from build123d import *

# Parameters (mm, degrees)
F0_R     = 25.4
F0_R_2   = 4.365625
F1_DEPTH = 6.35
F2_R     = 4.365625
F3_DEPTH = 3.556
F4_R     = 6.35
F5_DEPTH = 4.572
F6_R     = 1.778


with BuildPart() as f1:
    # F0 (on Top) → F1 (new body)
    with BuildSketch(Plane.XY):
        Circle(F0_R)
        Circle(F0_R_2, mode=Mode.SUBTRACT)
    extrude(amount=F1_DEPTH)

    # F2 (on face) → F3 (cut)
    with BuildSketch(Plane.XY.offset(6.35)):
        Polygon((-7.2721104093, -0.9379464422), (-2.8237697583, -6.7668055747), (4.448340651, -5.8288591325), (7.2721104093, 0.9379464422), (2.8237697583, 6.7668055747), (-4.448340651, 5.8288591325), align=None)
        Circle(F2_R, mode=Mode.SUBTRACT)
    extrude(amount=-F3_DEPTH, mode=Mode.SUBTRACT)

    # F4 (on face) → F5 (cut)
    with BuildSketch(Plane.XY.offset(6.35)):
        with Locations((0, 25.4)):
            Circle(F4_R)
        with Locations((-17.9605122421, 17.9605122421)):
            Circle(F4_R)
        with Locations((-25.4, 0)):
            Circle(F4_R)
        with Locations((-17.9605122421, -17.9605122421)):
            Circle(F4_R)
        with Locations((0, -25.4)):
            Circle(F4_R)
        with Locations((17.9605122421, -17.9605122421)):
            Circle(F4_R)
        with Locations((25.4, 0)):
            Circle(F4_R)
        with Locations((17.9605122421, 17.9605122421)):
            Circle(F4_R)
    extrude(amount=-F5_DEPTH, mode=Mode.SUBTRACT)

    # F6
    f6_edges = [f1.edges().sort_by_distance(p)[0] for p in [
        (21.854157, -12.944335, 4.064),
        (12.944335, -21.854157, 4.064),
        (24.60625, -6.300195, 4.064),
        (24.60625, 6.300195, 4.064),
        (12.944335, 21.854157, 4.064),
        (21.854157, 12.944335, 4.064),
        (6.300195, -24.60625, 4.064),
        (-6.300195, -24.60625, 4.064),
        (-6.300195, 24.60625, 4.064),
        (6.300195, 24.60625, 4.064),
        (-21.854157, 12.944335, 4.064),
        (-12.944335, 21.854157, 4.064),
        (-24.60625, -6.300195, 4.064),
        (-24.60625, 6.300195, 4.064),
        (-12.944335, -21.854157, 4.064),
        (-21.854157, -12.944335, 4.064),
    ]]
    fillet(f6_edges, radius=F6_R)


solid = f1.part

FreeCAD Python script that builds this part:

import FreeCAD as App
import Part
import Sketcher

V = App.Vector
Q = App.Units.Quantity


def edges_at(feature, points):
    """Names of the edges that pass closest to the given points."""
    edges = feature.Shape.Edges
    near = lambda p: min(range(len(edges)), key=lambda i: edges[i].distToShape(Part.Vertex(*p))[0])
    return sorted({f"Edge{near(p) + 1}" for p in points})


def add_polygon(sketch, points):
    """Adds a closed chain of lines whose ends are joined by coincident constraints."""
    first, n = sketch.GeometryCount, len(points)
    for a, b in zip(points, points[1:] + points[:1]):
        sketch.addGeometry(Part.LineSegment(App.Vector(*a, 0), App.Vector(*b, 0)), False)
    for i in range(n):
        sketch.addConstraint(Sketcher.Constraint("Coincident", first + i, 2, first + (i + 1) % n, 1))

doc = App.newDocument("Part")
body = doc.addObject("PartDesign::Body", "Body")

sketch1 = doc.addObject("Sketcher::SketchObject", "Sketch")
body.addObject(sketch1)
sketch1.AttachmentSupport = (doc.XY_Plane, [""])
sketch1.MapMode = "FlatFace"
sketch1.addGeometry([
    Part.Circle(V(0, 0, 0), V(0, 0, 1), 25.4),
    Part.Circle(V(0, 0, 0), V(0, 0, 1), 4.365625),
], False)
sketch1.addConstraint([
    Sketcher.Constraint("Coincident", 0, 3, -1, 1),
    Sketcher.Constraint("Coincident", 1, 3, -1, 1),
    Sketcher.Constraint("Diameter", 0, Q("2 in")),
    Sketcher.Constraint("Diameter", 1, Q("0.34375 in")),
])
pad1 = doc.addObject("PartDesign::Pad", "Pad")
body.addObject(pad1)
pad1.Profile = sketch1
pad1.Length = Q("0.25 in")

sketch2 = doc.addObject("Sketcher::SketchObject", "Sketch001")
body.addObject(sketch2)
sketch2.AttachmentSupport = (doc.XY_Plane, [""])
sketch2.MapMode = "FlatFace"
sketch2.AttachmentOffset = App.Placement(V(0, 0, 0.25 * 25.4), App.Rotation())
add_polygon(sketch2, [(-7.27211, -0.937946), (-2.82377, -6.766806), (4.448341, -5.828859), (7.27211, 0.937946), (2.82377, 6.766806), (-4.448341, 5.828859)])
sketch2.addGeometry(Part.Circle(V(0, 0, 0), V(0, 0, 1), 4.365625), False)
sketch2.addConstraint([
    Sketcher.Constraint("Coincident", 6, 3, -1, 1),
    Sketcher.Constraint("Symmetric", 0, 2, 3, 2, -1, 1),
    Sketcher.Constraint("Symmetric", 1, 2, 4, 2, -1, 1),
    Sketcher.Constraint("Symmetric", 2, 2, 5, 2, -1, 1),
    Sketcher.Constraint("Equal", 0, 1),
    Sketcher.Constraint("Equal", 1, 2),
    Sketcher.Constraint("Diameter", 6, Q("0.34375 in")),
    Sketcher.Constraint("Distance", 0, Q("7.332348 mm")),
    Sketcher.Constraint("DistanceX", 0, 2, -1, 1, Q("2.82377 mm")),
    Sketcher.Constraint("DistanceX", -1, 1, 1, 2, Q("4.448341 mm")),
    Sketcher.Constraint("DistanceY", 1, 2, -1, 1, Q("5.828859 mm")),
])
pocket1 = doc.addObject("PartDesign::Pocket", "Pocket")
body.addObject(pocket1)
pocket1.Profile = sketch2
pocket1.Length = Q("0.14 in")

sketch3 = doc.addObject("Sketcher::SketchObject", "Sketch002")
body.addObject(sketch3)
sketch3.AttachmentSupport = (doc.XY_Plane, [""])
sketch3.MapMode = "FlatFace"
sketch3.AttachmentOffset = App.Placement(V(0, 0, 0.25 * 25.4), App.Rotation())
sketch3.addGeometry([
    Part.Circle(V(0, 25.4, 0), V(0, 0, 1), 6.35),
    Part.Circle(V(-17.960512, 17.960512, 0), V(0, 0, 1), 6.35),
    Part.Circle(V(-25.4, 0, 0), V(0, 0, 1), 6.35),
    Part.Circle(V(-17.960512, -17.960512, 0), V(0, 0, 1), 6.35),
    Part.Circle(V(0, -25.4, 0), V(0, 0, 1), 6.35),
    Part.Circle(V(17.960512, -17.960512, 0), V(0, 0, 1), 6.35),
    Part.Circle(V(25.4, 0, 0), V(0, 0, 1), 6.35),
    Part.Circle(V(17.960512, 17.960512, 0), V(0, 0, 1), 6.35),
], False)
sketch3.addConstraint([
    Sketcher.Constraint("Equal", 0, 1),
    Sketcher.Constraint("Equal", 1, 2),
    Sketcher.Constraint("Equal", 2, 3),
    Sketcher.Constraint("Equal", 3, 4),
    Sketcher.Constraint("Equal", 4, 5),
    Sketcher.Constraint("Equal", 5, 6),
    Sketcher.Constraint("Equal", 6, 7),
    Sketcher.Constraint("Symmetric", 0, 3, 4, 3, -1, 1),
    Sketcher.Constraint("Symmetric", 1, 3, 5, 3, -1, 1),
    Sketcher.Constraint("Symmetric", 2, 3, 6, 3, -1, 1),
    Sketcher.Constraint("Symmetric", 3, 3, 7, 3, -1, 1),
    Sketcher.Constraint("Symmetric", 3, 3, 5, 3, -2),
    Sketcher.Constraint("PointOnObject", 0, 3, -2),
    Sketcher.Constraint("PointOnObject", 2, 3, -1),
    Sketcher.Constraint("Diameter", 0, Q("0.5 in")),
    Sketcher.Constraint("DistanceY", -1, 1, 0, 3, Q("1 in")),
    Sketcher.Constraint("DistanceX", 2, 3, -1, 1, Q("1 in")),
    Sketcher.Constraint("DistanceX", 1, 3, -1, 1, Q("17.960512 mm")),
    Sketcher.Constraint("DistanceY", -1, 1, 1, 3, Q("17.960512 mm")),
])
pocket2 = doc.addObject("PartDesign::Pocket", "Pocket001")
body.addObject(pocket2)
pocket2.Profile = sketch3
pocket2.Length = Q("0.18 in")
doc.recompute()

fillet = doc.addObject("PartDesign::Fillet", "Fillet")
body.addObject(fillet)
fillet.Base = (pocket2, edges_at(pocket2, [
    (21.854, -12.944, 4.064),
    (12.944, -21.854, 4.064),
    (24.606, -6.3, 4.064),
    (24.606, 6.3, 4.064),
    (12.944, 21.854, 4.064),
    (21.854, 12.944, 4.064),
    (6.3, -24.606, 4.064),
    (-6.3, -24.606, 4.064),
    (-6.3, 24.606, 4.064),
    (6.3, 24.606, 4.064),
    (-21.854, 12.944, 4.064),
    (-12.944, 21.854, 4.064),
    (-24.606, -6.3, 4.064),
    (-24.606, 6.3, 4.064),
    (-12.944, -21.854, 4.064),
    (-21.854, -12.944, 4.064),
]))
fillet.Radius = Q("0.07 in")

doc.recompute()
